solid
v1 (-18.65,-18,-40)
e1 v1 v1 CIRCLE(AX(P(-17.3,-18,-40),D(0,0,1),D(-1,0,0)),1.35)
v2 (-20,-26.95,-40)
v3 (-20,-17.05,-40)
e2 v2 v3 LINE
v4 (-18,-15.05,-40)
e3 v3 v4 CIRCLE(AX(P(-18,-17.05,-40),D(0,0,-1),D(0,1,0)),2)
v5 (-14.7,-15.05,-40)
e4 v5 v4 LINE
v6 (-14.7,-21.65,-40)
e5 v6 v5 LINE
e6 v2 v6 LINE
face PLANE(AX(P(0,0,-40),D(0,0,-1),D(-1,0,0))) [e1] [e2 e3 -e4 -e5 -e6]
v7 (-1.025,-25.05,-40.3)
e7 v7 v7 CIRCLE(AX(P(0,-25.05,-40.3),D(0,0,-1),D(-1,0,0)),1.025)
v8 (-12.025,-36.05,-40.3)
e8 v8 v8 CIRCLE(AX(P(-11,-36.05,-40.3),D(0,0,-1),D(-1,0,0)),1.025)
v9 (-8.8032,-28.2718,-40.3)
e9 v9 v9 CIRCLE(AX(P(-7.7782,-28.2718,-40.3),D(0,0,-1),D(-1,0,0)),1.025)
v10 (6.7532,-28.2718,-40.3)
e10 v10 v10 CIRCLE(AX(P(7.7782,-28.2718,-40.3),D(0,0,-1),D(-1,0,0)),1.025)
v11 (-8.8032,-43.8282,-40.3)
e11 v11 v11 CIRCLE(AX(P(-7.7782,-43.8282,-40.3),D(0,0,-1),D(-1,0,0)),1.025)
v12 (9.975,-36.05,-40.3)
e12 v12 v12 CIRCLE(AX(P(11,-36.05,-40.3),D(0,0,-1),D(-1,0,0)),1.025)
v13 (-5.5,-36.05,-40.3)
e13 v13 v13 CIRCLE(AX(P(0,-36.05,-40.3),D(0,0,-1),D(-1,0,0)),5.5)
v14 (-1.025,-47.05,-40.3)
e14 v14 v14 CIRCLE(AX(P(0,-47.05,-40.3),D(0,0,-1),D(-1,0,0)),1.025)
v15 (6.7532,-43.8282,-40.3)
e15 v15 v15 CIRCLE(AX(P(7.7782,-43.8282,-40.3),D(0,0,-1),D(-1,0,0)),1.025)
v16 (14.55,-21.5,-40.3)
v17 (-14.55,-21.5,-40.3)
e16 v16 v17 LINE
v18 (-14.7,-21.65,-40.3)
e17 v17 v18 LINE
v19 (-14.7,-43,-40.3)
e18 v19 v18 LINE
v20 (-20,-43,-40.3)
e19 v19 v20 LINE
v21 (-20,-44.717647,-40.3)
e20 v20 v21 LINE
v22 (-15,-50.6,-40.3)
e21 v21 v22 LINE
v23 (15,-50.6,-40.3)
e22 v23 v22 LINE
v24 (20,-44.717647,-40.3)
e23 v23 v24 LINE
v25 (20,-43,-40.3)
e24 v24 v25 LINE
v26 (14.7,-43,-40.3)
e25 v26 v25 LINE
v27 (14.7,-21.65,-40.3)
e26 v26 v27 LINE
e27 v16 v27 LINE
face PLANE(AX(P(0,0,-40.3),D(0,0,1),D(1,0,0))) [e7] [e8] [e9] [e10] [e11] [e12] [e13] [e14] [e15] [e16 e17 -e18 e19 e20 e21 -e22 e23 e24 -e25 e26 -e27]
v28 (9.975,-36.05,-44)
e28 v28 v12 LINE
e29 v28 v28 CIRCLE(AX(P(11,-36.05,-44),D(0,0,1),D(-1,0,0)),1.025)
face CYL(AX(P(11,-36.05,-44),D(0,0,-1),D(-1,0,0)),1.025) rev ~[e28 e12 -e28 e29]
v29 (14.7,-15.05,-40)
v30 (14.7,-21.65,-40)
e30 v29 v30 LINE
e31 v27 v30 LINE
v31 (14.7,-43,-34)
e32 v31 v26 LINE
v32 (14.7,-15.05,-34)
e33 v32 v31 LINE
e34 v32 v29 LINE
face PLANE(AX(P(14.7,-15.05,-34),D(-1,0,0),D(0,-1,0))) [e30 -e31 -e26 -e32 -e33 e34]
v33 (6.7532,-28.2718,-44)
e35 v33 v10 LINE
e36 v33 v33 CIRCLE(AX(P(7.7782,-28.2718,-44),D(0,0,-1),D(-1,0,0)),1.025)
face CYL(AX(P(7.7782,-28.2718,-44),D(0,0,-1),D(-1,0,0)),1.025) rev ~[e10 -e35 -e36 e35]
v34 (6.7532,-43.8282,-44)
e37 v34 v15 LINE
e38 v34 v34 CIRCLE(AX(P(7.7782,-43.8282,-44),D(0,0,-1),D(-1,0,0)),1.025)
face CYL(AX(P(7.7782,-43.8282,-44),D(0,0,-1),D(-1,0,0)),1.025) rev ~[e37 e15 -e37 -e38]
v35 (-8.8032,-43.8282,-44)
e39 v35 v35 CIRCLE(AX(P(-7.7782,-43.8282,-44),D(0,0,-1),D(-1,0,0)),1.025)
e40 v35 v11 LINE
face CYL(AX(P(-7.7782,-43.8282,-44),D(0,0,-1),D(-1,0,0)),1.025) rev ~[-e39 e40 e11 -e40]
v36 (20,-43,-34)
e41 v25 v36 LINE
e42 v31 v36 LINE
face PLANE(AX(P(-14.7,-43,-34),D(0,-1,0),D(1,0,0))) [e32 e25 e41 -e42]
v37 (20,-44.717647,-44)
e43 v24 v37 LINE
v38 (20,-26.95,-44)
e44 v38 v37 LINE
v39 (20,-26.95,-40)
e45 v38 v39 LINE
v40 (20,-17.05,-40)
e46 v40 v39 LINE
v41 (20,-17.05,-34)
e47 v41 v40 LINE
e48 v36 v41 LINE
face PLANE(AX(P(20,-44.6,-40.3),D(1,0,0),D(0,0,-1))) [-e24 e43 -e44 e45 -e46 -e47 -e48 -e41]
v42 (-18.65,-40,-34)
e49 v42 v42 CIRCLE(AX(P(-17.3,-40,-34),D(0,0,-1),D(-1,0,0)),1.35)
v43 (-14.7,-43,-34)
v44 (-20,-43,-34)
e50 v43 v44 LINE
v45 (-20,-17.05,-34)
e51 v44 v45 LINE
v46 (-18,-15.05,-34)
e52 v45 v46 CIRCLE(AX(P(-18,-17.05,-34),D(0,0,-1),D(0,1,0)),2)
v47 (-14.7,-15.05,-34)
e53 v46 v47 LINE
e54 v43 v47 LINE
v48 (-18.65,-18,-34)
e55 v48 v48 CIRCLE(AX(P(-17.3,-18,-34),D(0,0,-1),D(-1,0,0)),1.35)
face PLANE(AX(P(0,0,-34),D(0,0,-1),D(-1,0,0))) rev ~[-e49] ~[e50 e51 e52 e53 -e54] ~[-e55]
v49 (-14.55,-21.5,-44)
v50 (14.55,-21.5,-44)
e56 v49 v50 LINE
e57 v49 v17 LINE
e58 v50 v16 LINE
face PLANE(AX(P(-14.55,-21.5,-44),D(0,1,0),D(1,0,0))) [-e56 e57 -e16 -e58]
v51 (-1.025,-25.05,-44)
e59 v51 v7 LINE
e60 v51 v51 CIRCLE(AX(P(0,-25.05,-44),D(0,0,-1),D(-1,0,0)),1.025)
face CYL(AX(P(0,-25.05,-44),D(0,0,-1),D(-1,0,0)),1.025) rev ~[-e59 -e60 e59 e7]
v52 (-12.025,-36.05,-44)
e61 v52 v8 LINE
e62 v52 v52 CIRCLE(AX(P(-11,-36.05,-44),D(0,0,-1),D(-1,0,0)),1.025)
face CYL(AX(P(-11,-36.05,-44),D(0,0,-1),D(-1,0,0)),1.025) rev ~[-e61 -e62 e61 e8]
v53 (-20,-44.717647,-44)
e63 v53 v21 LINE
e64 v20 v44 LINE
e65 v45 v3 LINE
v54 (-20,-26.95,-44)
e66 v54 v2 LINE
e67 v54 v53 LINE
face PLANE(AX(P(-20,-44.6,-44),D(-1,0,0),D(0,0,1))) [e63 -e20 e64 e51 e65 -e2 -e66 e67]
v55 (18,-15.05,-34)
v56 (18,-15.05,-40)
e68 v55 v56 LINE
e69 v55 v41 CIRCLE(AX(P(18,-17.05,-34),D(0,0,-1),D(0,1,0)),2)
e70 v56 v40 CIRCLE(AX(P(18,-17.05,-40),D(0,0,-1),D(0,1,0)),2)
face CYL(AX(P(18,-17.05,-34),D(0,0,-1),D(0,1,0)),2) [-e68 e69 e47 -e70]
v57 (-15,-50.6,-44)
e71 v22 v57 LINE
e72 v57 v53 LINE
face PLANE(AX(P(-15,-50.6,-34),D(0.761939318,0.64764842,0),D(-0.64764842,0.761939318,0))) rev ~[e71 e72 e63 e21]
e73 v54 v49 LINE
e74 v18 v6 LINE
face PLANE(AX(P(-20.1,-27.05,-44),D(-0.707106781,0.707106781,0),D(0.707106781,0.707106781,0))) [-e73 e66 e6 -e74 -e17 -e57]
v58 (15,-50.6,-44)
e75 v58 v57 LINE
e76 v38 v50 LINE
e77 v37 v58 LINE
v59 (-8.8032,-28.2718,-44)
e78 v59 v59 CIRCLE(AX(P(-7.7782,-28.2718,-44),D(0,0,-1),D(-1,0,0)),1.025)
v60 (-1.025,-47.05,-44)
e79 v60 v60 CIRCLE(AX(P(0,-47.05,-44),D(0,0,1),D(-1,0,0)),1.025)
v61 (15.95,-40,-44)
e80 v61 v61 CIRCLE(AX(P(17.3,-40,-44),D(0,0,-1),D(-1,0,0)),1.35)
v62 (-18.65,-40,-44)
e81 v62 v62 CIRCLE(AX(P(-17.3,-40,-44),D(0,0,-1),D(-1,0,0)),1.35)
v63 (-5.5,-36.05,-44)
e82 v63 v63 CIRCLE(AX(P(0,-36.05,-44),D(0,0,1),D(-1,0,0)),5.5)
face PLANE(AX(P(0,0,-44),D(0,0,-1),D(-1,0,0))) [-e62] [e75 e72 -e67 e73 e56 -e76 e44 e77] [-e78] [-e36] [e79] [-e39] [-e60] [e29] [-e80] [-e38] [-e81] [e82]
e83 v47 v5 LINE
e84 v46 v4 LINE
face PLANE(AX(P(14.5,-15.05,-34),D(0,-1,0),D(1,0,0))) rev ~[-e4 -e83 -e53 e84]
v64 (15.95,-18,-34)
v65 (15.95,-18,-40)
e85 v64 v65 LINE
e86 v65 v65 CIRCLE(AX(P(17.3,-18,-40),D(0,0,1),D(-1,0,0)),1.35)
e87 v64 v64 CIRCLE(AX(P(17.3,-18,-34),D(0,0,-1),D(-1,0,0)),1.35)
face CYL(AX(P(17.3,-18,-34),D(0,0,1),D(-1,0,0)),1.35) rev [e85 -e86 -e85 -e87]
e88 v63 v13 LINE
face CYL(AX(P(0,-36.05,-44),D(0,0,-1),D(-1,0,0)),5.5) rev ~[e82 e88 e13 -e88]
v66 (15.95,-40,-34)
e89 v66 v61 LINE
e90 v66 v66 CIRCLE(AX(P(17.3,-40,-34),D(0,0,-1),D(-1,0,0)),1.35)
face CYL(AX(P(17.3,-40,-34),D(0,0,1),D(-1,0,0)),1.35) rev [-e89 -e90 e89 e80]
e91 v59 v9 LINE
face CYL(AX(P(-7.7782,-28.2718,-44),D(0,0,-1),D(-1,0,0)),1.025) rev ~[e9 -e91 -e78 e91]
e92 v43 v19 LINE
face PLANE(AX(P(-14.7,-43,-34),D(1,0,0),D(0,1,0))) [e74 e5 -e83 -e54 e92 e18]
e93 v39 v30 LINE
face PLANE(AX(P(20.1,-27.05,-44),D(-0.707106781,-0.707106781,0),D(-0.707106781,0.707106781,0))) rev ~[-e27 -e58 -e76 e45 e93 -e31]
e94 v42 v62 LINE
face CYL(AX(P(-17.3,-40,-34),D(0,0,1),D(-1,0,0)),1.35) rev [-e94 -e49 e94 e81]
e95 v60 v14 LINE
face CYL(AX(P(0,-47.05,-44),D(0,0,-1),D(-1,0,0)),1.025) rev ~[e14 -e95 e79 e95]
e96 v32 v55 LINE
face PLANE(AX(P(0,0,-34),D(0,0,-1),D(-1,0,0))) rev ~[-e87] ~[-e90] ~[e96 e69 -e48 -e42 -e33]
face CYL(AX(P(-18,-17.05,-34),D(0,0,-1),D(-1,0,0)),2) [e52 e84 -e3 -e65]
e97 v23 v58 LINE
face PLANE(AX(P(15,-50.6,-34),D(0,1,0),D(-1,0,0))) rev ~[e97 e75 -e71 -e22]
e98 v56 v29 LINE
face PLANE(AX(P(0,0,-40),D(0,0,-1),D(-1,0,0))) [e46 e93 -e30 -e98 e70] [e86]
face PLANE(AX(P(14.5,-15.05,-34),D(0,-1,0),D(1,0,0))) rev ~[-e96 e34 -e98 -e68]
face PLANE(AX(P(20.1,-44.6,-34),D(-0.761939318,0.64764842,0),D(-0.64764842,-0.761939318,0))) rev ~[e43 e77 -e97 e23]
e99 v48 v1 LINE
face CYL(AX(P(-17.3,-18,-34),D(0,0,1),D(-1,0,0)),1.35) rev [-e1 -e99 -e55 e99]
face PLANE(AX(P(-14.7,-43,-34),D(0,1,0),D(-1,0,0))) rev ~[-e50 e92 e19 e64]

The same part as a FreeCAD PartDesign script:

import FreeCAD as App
import Part
import Sketcher

V = App.Vector


def edges_at(feature, points):
    """Names of the edges that pass closest to the given points."""
    edges = feature.Shape.Edges
    near = lambda p: min(range(len(edges)), key=lambda i: edges[i].distToShape(Part.Vertex(*p))[0])
    return sorted({f"Edge{near(p) + 1}" for p in points})

doc = App.newDocument("Part")
body = doc.addObject("PartDesign::Body", "Body")

sketch1 = body.newObject("Sketcher::SketchObject", "Sketch")
sketch1.AttachmentSupport = (doc.getObject("XY_Plane"), [""])
sketch1.MapMode = "FlatFace"
sketch1.AttachmentOffset = App.Placement(V(0, 0, -34), App.Rotation())
sketch1.addGeometry([
    Part.LineSegment(V(20.1, -15.1, 0), V(20.1, -44.6, 0)),
    Part.LineSegment(V(20.1, -44.6, 0), V(15, -50.6, 0)),
    Part.LineSegment(V(15, -50.6, 0), V(-15, -50.6, 0)),
    Part.LineSegment(V(-15, -50.6, 0), V(-20.1, -44.6, 0)),
    Part.LineSegment(V(-20.1, -44.6, 0), V(-20.1, -15.1, 0)),
    Part.LineSegment(V(-20.1, -15.1, 0), V(20.1, -15.1, 0)),
    Part.Circle(V(17.3, -40, 0), V(0, 0, 1), 1.4),
    Part.Circle(V(-17.3, -40, 0), V(0, 0, 1), 1.4),
    Part.Circle(V(17.3, -18, 0), V(0, 0, 1), 1.4),
    Part.Circle(V(-17.3, -18, 0), V(0, 0, 1), 1.4),
], False)
sketch1.addConstraint([
    Sketcher.Constraint("Coincident", 0, 2, 1, 1),
    Sketcher.Constraint("Coincident", 1, 2, 2, 1),
    Sketcher.Constraint("Coincident", 2, 2, 3, 1),
    Sketcher.Constraint("Coincident", 3, 2, 4, 1),
    Sketcher.Constraint("Coincident", 4, 2, 5, 1),
    Sketcher.Constraint("Coincident", 5, 2, 0, 1),
    Sketcher.Constraint("Vertical", 0),
    Sketcher.Constraint("Horizontal", 2),
    Sketcher.Constraint("Vertical", 4),
    Sketcher.Constraint("Horizontal", 5),
    Sketcher.Constraint("Equal", 6, 7),
    Sketcher.Constraint("Equal", 7, 8),
    Sketcher.Constraint("Equal", 8, 9),
    Sketcher.Constraint("Symmetric", 6, 3, 7, 3, -2),
    Sketcher.Constraint("Symmetric", 8, 3, 9, 3, -2),
    Sketcher.Constraint("Symmetric", 0, 2, 3, 2, -2),
    Sketcher.Constraint("Vertical", 6, 3, 8, 3),
    Sketcher.Constraint("Equal", 1, 3),
    Sketcher.Constraint("Diameter", 6, 2.7),
    Sketcher.Constraint("DistanceX", 2, 2, 2, 1, 30.0),
    Sketcher.Constraint("DistanceX", 5, 1, 5, 2, 40.2),
    Sketcher.Constraint("DistanceY", 6, 3, -1, 1, 40.0),
    Sketcher.Constraint("DistanceY", 8, 3, -1, 1, 18.0),
    Sketcher.Constraint("DistanceY", 1, 2, 0, 2, 6.0),
    Sketcher.Constraint("DistanceY", 0, 2, 0, 1, 29.55),
    Sketcher.Constraint("DistanceX", -1, 1, 6, 3, 17.3),
    Sketcher.Constraint("DistanceY", 0, 2, -1, 1, 44.6),
])
pad1 = body.newObject("PartDesign::Pad", "Pad")
pad1.Profile = sketch1
pad1.Length = 10
pad1.Reversed = True

sketch2 = body.newObject("Sketcher::SketchObject", "Sketch001")
sketch2.AttachmentSupport = (doc.getObject("XY_Plane"), [""])
sketch2.MapMode = "FlatFace"
sketch2.AttachmentOffset = App.Placement(V(0, 0, -34), App.Rotation())
sketch2.addGeometry([
    Part.LineSegment(V(15, -15, 0), V(-15, -15, 0)),
    Part.LineSegment(V(-15, -15, 0), V(-15, -43, 0)),
    Part.LineSegment(V(-15, -43, 0), V(15, -43, 0)),
    Part.LineSegment(V(15, -43, 0), V(15, -15, 0)),
], False)
sketch2.addConstraint([
    Sketcher.Constraint("Coincident", 0, 2, 1, 1),
    Sketcher.Constraint("Coincident", 1, 2, 2, 1),
    Sketcher.Constraint("Coincident", 2, 2, 3, 1),
    Sketcher.Constraint("Coincident", 3, 2, 0, 1),
    Sketcher.Constraint("Horizontal", 0),
    Sketcher.Constraint("Vertical", 1),
    Sketcher.Constraint("Horizontal", 2),
    Sketcher.Constraint("Vertical", 3),
    Sketcher.Constraint("DistanceX", 0, 2, 0, 1, 29.4),
    Sketcher.Constraint("DistanceY", 1, 2, 1, 1, 27.95),
    Sketcher.Constraint("DistanceY", 1, 2, -1, 1, 43.0),
    Sketcher.Constraint("DistanceX", 0, 2, -1, 1, 14.7),
])
pocket1 = body.newObject("PartDesign::Pocket", "Pocket")
pocket1.Profile = sketch2
pocket1.Length = 6.3

sketch3 = body.newObject("Sketcher::SketchObject", "Sketch002")
sketch3.AttachmentSupport = (doc.getObject("XY_Plane"), [""])
sketch3.MapMode = "FlatFace"
sketch3.AttachmentOffset = App.Placement(V(0, 0, -34), App.Rotation())
sketch3.addGeometry([
    Part.LineSegment(V(20, -43, 0), V(-20, -43, 0)),
    Part.LineSegment(V(-20, -43, 0), V(-20, -51, 0)),
    Part.LineSegment(V(-20, -51, 0), V(20, -51, 0)),
    Part.LineSegment(V(20, -51, 0), V(20, -43, 0)),
], False)
sketch3.addConstraint([
    Sketcher.Constraint("Coincident", 0, 2, 1, 1),
    Sketcher.Constraint("Coincident", 1, 2, 2, 1),
    Sketcher.Constraint("Coincident", 2, 2, 3, 1),
    Sketcher.Constraint("Coincident", 3, 2, 0, 1),
    Sketcher.Constraint("Horizontal", 0),
    Sketcher.Constraint("Vertical", 1),
    Sketcher.Constraint("Horizontal", 2),
    Sketcher.Constraint("Vertical", 3),
    Sketcher.Constraint("DistanceX", 0, 2, 0, 1, 40.2),
    Sketcher.Constraint("DistanceY", 1, 2, 1, 1, 7.6),
    Sketcher.Constraint("DistanceY", 0, 2, -1, 1, 43.0),
    Sketcher.Constraint("DistanceX", 0, 2, -1, 1, 20.1),
])
pocket2 = body.newObject("PartDesign::Pocket", "Pocket001")
pocket2.Profile = sketch3
pocket2.Length = 6.3

sketch4 = body.newObject("Sketcher::SketchObject", "Sketch003")
sketch4.AttachmentSupport = (doc.getObject("XY_Plane"), [""])
sketch4.MapMode = "FlatFace"
sketch4.AttachmentOffset = App.Placement(V(0, 0, -44), App.Rotation())
sketch4.addGeometry([
    Part.Circle(V(11, -36, 0), V(0, 0, 1), 1),
    Part.Circle(V(0, -47, 0), V(0, 0, 1), 1),
    Part.Circle(V(0, -36, 0), V(0, 0, 1), 5.5),
    Part.Circle(V(-7.8, -43.8, 0), V(0, 0, 1), 1),
    Part.Circle(V(-11, -36, 0), V(0, 0, 1), 1),
    Part.Circle(V(-7.8, -28.3, 0), V(0, 0, 1), 1),
    Part.Circle(V(0, -25.1, 0), V(0, 0, 1), 1),
    Part.Circle(V(7.8, -28.3, 0), V(0, 0, 1), 1),
    Part.Circle(V(7.8, -43.8, 0), V(0, 0, 1), 1),
], False)
sketch4.addConstraint([
    Sketcher.Constraint("Equal", 0, 1),
    Sketcher.Constraint("Equal", 1, 3),
    Sketcher.Constraint("Equal", 3, 4),
    Sketcher.Constraint("Equal", 4, 5),
    Sketcher.Constraint("Equal", 5, 6),
    Sketcher.Constraint("Equal", 6, 7),
    Sketcher.Constraint("Equal", 7, 8),
    Sketcher.Constraint("Symmetric", 0, 3, 4, 3, -2),
    Sketcher.Constraint("Symmetric", 5, 3, 7, 3, -2),
    Sketcher.Constraint("Symmetric", 3, 3, 8, 3, -2),
    Sketcher.Constraint("PointOnObject", 1, 3, -2),
    Sketcher.Constraint("PointOnObject", 2, 3, -2),
    Sketcher.Constraint("PointOnObject", 6, 3, -2),
    Sketcher.Constraint("Horizontal", 0, 3, 2, 3),
    Sketcher.Constraint("Vertical", 3, 3, 5, 3),
    Sketcher.Constraint("Diameter", 2, 11.0),
    Sketcher.Constraint("Diameter", 0, 2.05),
    Sketcher.Constraint("DistanceX", -1, 1, 0, 3, 11.0),
    Sketcher.Constraint("DistanceY", 1, 3, 0, 3, 11.0),
    Sketcher.Constraint("DistanceY", 2, 3, 6, 3, 11.0),
    Sketcher.Constraint("DistanceY", 0, 3, -1, 1, 36.05),
    Sketcher.Constraint("DistanceX", 3, 3, -1, 1, 7.7782),
    Sketcher.Constraint("DistanceY", 3, 3, -1, 1, 43.8282),
    Sketcher.Constraint("DistanceY", 5, 3, -1, 1, 28.2718),
])
pocket3 = body.newObject("PartDesign::Pocket", "Pocket002")
pocket3.Profile = sketch4
pocket3.Length = 3.7
pocket3.Reversed = True

sketch5 = body.newObject("Sketcher::SketchObject", "Sketch004")
sketch5.AttachmentSupport = (doc.getObject("XY_Plane"), [""])
sketch5.MapMode = "FlatFace"
sketch5.AttachmentOffset = App.Placement(V(0, 0, -44), App.Rotation())
sketch5.addGeometry([
    Part.LineSegment(V(-20, -15, 0), V(20, -15, 0)),
    Part.LineSegment(V(20, -15, 0), V(20, -27, 0)),
    Part.LineSegment(V(20, -27, 0), V(15, -22, 0)),
    Part.LineSegment(V(15, -22, 0), V(-15, -22, 0)),
    Part.LineSegment(V(-15, -22, 0), V(-20, -27, 0)),
    Part.LineSegment(V(-20, -27, 0), V(-20, -15, 0)),
], False)
sketch5.addConstraint([
    Sketcher.Constraint("Coincident", 0, 2, 1, 1),
    Sketcher.Constraint("Coincident", 1, 2, 2, 1),
    Sketcher.Constraint("Coincident", 2, 2, 3, 1),
    Sketcher.Constraint("Coincident", 3, 2, 4, 1),
    Sketcher.Constraint("Coincident", 4, 2, 5, 1),
    Sketcher.Constraint("Coincident", 5, 2, 0, 1),
    Sketcher.Constraint("Horizontal", 0),
    Sketcher.Constraint("Vertical", 1),
    Sketcher.Constraint("Horizontal", 3),
    Sketcher.Constraint("Vertical", 5),
    Sketcher.Constraint("Symmetric", 1, 2, 4, 2, -2),
    Sketcher.Constraint("Perpendicular", 2, 4),
    Sketcher.Constraint("Equal", 2, 4),
    Sketcher.Constraint("DistanceY", 1, 2, 1, 1, 12.0),
    Sketcher.Constraint("DistanceX", -1, 1, 0, 2, 20.1),
    Sketcher.Constraint("DistanceY", 2, 2, 0, 2, 6.45),
    Sketcher.Constraint("DistanceY", 2, 2, -1, 1, 21.5),
])
pocket4 = body.newObject("PartDesign::Pocket", "Pocket003")
pocket4.Profile = sketch5
pocket4.Length = 4
pocket4.Reversed = True

sketch6 = body.newObject("Sketcher::SketchObject", "Sketch005")
sketch6.AttachmentSupport = (doc.getObject("YZ_Plane"), [""])
sketch6.MapMode = "FlatFace"
sketch6.AttachmentOffset = App.Placement(V(0, 0, 20.1), App.Rotation())
sketch6.addGeometry([
    Part.LineSegment(V(-15, -44, 0), V(-15, -34, 0)),
    Part.LineSegment(V(-15, -34, 0), V(-51, -34, 0)),
    Part.LineSegment(V(-51, -34, 0), V(-51, -44, 0)),
    Part.LineSegment(V(-51, -44, 0), V(-15, -44, 0)),
], False)
sketch6.addConstraint([
    Sketcher.Constraint("Coincident", 0, 2, 1, 1),
    Sketcher.Constraint("Coincident", 1, 2, 2, 1),
    Sketcher.Constraint("Coincident", 2, 2, 3, 1),
    Sketcher.Constraint("Coincident", 3, 2, 0, 1),
    Sketcher.Constraint("Vertical", 0),
    Sketcher.Constraint("Horizontal", 1),
    Sketcher.Constraint("Vertical", 2),
    Sketcher.Constraint("Horizontal", 3),
    Sketcher.Constraint("DistanceY", 0, 1, 0, 2, 10.0),
    Sketcher.Constraint("DistanceY", 0, 2, -1, 1, 34.0),
    Sketcher.Constraint("DistanceX", 1, 2, 1, 1, 35.55),
    Sketcher.Constraint("DistanceX", 1, 2, -1, 1, 50.6),
])
pocket5 = body.newObject("PartDesign::Pocket", "Pocket004")
pocket5.Profile = sketch6
pocket5.Length = 0.1

sketch7 = body.newObject("Sketcher::SketchObject", "Sketch006")
sketch7.AttachmentSupport = (doc.getObject("YZ_Plane"), [""])
sketch7.MapMode = "FlatFace"
sketch7.AttachmentOffset = App.Placement(V(0, 0, -20.1), App.Rotation())
sketch7.addGeometry([
    Part.LineSegment(V(-51, -34, 0), V(-15, -34, 0)),
    Part.LineSegment(V(-15, -34, 0), V(-15, -44, 0)),
    Part.LineSegment(V(-15, -44, 0), V(-51, -44, 0)),
    Part.LineSegment(V(-51, -44, 0), V(-51, -34, 0)),
], False)
sketch7.addConstraint([
    Sketcher.Constraint("Coincident", 0, 2, 1, 1),
    Sketcher.Constraint("Coincident", 1, 2, 2, 1),
    Sketcher.Constraint("Coincident", 2, 2, 3, 1),
    Sketcher.Constraint("Coincident", 3, 2, 0, 1),
    Sketcher.Constraint("Horizontal", 0),
    Sketcher.Constraint("Vertical", 1),
    Sketcher.Constraint("Horizontal", 2),
    Sketcher.Constraint("Vertical", 3),
    Sketcher.Constraint("DistanceY", 1, 2, 1, 1, 10.0),
    Sketcher.Constraint("DistanceY", 0, 2, -1, 1, 34.0),
    Sketcher.Constraint("DistanceX", 0, 1, 0, 2, 35.55),
    Sketcher.Constraint("DistanceX", 2, 2, -1, 1, 50.6),
])
pocket6 = body.newObject("PartDesign::Pocket", "Pocket005")
pocket6.Profile = sketch7
pocket6.Length = 0.1
pocket6.Reversed = True
doc.recompute()

fillet = body.newObject("PartDesign::Fillet", "Fillet")
fillet.Base = (pocket6, edges_at(pocket6, [(-20, -15.05, -37), (20, -15.05, -37)]))
fillet.Radius = 2

doc.recompute()
